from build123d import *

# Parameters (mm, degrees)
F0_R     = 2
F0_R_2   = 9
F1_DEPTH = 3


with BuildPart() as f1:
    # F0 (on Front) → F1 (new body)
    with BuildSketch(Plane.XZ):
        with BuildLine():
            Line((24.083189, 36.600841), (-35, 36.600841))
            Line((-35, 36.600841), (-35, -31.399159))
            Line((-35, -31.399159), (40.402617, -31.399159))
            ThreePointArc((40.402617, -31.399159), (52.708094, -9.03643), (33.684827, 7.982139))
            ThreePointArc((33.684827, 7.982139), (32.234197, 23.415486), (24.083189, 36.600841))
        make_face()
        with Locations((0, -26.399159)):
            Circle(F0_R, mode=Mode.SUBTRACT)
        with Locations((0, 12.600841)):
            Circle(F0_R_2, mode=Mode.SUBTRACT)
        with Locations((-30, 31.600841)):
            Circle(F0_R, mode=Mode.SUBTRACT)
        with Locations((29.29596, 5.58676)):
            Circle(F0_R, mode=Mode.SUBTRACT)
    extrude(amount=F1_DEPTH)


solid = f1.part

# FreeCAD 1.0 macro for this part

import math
import FreeCAD as App
import Part
import Sketcher

doc = App.newDocument("Part")
body = doc.addObject("PartDesign::Body", "Body")

# Sketch on XZ plane
sketch1 = body.newObject("Sketcher::SketchObject", "Sketch")
sketch1.AttachmentSupport = (doc.getObject("XZ_Plane"), [""])
sketch1.MapMode = "FlatFace"
sketch1.addGeometry(Part.LineSegment(App.Vector(24.1, 36.6, 0), App.Vector(-35, 36.6, 0)), False)
sketch1.addGeometry(Part.LineSegment(App.Vector(-35, 36.6, 0), App.Vector(-35, -31.4, 0)), False)
sketch1.addGeometry(Part.LineSegment(App.Vector(-35, -31.4, 0), App.Vector(40.4, -31.4, 0)), False)
sketch1.addGeometry(Part.ArcOfCircle(Part.Circle(App.Vector(32.5, -12.5, 0), App.Vector(0, 0, 1), 20.5), math.radians(-67), math.radians(87)), False)
sketch1.addGeometry(Part.ArcOfCircle(Part.Circle(App.Vector(0, 12.6, 0), App.Vector(0, 0, 1), 34), math.radians(-8), math.radians(45)), False)
sketch1.addGeometry(Part.Circle(App.Vector(0, -26.4, 0), App.Vector(0, 0, 1), 2), False)
sketch1.addGeometry(Part.Circle(App.Vector(-30, 31.6, 0), App.Vector(0, 0, 1), 2), False)
sketch1.addGeometry(Part.Circle(App.Vector(0, 12.6, 0), App.Vector(0, 0, 1), 9), False)
sketch1.addGeometry(Part.Circle(App.Vector(29.3, 5.6, 0), App.Vector(0, 0, 1), 2), False)
sketch1.addConstraint(Sketcher.Constraint("Coincident", 0, 2, 1, 1))
sketch1.addConstraint(Sketcher.Constraint("Coincident", 1, 2, 2, 1))
sketch1.addConstraint(Sketcher.Constraint("Coincident", 2, 2, 3, 1))
sketch1.addConstraint(Sketcher.Constraint("Coincident", 3, 2, 4, 1))
sketch1.addConstraint(Sketcher.Constraint("Coincident", 4, 2, 0, 1))
sketch1.addConstraint(Sketcher.Constraint("Horizontal", 0))
sketch1.addConstraint(Sketcher.Constraint("Vertical", 1))
sketch1.addConstraint(Sketcher.Constraint("Horizontal", 2))
sketch1.addConstraint(Sketcher.Constraint("Coincident", 7, 3, 4, 3))
sketch1.addConstraint(Sketcher.Constraint("Equal", 5, 6))
sketch1.addConstraint(Sketcher.Constraint("Equal", 6, 8))
sketch1.addConstraint(Sketcher.Constraint("PointOnObject", 5, 3, -2))
sketch1.addConstraint(Sketcher.Constraint("PointOnObject", 7, 3, -2))
sketch1.addConstraint(Sketcher.Constraint("Diameter", 5, 4.0))
sketch1.addConstraint(Sketcher.Constraint("Diameter", 7, 18.0))
sketch1.addConstraint(Sketcher.Constraint("Radius", 3, 20.5))
sketch1.addConstraint(Sketcher.Constraint("DistanceY", 1, 2, 1, 1, 68.0))
sketch1.addConstraint(Sketcher.Constraint("DistanceX", 6, 3, -1, 1, 30.0))
sketch1.addConstraint(Sketcher.Constraint("DistanceX", 0, 2, -1, 1, 35.0))
sketch1.addConstraint(Sketcher.Constraint("DistanceY", 5, 3, 4, 3, 39.000001))
sketch1.addConstraint(Sketcher.Constraint("DistanceY", 4, 3, 6, 3, 18.999999))
sketch1.addConstraint(Sketcher.Constraint("DistanceY", 6, 3, 0, 2, 5.0))
sketch1.addConstraint(Sketcher.Constraint("DistanceX", -1, 1, 3, 3, 32.5))
sketch1.addConstraint(Sketcher.Constraint("Radius", 4, 33.999998))
sketch1.addConstraint(Sketcher.Constraint("DistanceX", 2, 1, 2, 2, 75.402617))
sketch1.addConstraint(Sketcher.Constraint("DistanceY", 5, 3, -1, 1, 26.399159))
sketch1.addConstraint(Sketcher.Constraint("DistanceX", -1, 1, 8, 3, 29.29596))
sketch1.addConstraint(Sketcher.Constraint("DistanceY", -1, 1, 8, 3, 5.58676))
pad1 = body.newObject("PartDesign::Pad", "Pad")
pad1.Profile = sketch1
pad1.Length = 3

doc.recompute()
